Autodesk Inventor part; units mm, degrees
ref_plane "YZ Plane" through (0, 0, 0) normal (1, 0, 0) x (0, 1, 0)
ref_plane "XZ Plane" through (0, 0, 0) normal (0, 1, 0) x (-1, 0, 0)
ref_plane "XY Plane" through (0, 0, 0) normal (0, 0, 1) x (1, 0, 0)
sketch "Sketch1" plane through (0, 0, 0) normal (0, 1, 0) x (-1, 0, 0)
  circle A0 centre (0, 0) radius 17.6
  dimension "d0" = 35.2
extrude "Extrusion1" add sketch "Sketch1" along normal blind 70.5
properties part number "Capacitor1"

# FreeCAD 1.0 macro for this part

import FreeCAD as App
import Part
import Sketcher
from FreeCAD import Vector

doc = App.newDocument("Part")
body = doc.addObject("PartDesign::Body", "Body")

sketch1 = body.newObject("Sketcher::SketchObject", "Sketch")
sketch1.AttachmentSupport = (doc.getObject("XZ_Plane"), [""])
sketch1.MapMode = "FlatFace"
sketch1.addGeometry(Part.Circle(Vector(0, 0, 0), Vector(0, 0, 1), 18), False)
sketch1.addConstraint(Sketcher.Constraint("Coincident", 0, 3, -1, 1))
sketch1.addConstraint(Sketcher.Constraint("Diameter", 0, 35.2))
pad1 = body.newObject("PartDesign::Pad", "Pad")
pad1.Profile = sketch1
pad1.Length = 70.5
pad1.Reversed = True

doc.recompute()
